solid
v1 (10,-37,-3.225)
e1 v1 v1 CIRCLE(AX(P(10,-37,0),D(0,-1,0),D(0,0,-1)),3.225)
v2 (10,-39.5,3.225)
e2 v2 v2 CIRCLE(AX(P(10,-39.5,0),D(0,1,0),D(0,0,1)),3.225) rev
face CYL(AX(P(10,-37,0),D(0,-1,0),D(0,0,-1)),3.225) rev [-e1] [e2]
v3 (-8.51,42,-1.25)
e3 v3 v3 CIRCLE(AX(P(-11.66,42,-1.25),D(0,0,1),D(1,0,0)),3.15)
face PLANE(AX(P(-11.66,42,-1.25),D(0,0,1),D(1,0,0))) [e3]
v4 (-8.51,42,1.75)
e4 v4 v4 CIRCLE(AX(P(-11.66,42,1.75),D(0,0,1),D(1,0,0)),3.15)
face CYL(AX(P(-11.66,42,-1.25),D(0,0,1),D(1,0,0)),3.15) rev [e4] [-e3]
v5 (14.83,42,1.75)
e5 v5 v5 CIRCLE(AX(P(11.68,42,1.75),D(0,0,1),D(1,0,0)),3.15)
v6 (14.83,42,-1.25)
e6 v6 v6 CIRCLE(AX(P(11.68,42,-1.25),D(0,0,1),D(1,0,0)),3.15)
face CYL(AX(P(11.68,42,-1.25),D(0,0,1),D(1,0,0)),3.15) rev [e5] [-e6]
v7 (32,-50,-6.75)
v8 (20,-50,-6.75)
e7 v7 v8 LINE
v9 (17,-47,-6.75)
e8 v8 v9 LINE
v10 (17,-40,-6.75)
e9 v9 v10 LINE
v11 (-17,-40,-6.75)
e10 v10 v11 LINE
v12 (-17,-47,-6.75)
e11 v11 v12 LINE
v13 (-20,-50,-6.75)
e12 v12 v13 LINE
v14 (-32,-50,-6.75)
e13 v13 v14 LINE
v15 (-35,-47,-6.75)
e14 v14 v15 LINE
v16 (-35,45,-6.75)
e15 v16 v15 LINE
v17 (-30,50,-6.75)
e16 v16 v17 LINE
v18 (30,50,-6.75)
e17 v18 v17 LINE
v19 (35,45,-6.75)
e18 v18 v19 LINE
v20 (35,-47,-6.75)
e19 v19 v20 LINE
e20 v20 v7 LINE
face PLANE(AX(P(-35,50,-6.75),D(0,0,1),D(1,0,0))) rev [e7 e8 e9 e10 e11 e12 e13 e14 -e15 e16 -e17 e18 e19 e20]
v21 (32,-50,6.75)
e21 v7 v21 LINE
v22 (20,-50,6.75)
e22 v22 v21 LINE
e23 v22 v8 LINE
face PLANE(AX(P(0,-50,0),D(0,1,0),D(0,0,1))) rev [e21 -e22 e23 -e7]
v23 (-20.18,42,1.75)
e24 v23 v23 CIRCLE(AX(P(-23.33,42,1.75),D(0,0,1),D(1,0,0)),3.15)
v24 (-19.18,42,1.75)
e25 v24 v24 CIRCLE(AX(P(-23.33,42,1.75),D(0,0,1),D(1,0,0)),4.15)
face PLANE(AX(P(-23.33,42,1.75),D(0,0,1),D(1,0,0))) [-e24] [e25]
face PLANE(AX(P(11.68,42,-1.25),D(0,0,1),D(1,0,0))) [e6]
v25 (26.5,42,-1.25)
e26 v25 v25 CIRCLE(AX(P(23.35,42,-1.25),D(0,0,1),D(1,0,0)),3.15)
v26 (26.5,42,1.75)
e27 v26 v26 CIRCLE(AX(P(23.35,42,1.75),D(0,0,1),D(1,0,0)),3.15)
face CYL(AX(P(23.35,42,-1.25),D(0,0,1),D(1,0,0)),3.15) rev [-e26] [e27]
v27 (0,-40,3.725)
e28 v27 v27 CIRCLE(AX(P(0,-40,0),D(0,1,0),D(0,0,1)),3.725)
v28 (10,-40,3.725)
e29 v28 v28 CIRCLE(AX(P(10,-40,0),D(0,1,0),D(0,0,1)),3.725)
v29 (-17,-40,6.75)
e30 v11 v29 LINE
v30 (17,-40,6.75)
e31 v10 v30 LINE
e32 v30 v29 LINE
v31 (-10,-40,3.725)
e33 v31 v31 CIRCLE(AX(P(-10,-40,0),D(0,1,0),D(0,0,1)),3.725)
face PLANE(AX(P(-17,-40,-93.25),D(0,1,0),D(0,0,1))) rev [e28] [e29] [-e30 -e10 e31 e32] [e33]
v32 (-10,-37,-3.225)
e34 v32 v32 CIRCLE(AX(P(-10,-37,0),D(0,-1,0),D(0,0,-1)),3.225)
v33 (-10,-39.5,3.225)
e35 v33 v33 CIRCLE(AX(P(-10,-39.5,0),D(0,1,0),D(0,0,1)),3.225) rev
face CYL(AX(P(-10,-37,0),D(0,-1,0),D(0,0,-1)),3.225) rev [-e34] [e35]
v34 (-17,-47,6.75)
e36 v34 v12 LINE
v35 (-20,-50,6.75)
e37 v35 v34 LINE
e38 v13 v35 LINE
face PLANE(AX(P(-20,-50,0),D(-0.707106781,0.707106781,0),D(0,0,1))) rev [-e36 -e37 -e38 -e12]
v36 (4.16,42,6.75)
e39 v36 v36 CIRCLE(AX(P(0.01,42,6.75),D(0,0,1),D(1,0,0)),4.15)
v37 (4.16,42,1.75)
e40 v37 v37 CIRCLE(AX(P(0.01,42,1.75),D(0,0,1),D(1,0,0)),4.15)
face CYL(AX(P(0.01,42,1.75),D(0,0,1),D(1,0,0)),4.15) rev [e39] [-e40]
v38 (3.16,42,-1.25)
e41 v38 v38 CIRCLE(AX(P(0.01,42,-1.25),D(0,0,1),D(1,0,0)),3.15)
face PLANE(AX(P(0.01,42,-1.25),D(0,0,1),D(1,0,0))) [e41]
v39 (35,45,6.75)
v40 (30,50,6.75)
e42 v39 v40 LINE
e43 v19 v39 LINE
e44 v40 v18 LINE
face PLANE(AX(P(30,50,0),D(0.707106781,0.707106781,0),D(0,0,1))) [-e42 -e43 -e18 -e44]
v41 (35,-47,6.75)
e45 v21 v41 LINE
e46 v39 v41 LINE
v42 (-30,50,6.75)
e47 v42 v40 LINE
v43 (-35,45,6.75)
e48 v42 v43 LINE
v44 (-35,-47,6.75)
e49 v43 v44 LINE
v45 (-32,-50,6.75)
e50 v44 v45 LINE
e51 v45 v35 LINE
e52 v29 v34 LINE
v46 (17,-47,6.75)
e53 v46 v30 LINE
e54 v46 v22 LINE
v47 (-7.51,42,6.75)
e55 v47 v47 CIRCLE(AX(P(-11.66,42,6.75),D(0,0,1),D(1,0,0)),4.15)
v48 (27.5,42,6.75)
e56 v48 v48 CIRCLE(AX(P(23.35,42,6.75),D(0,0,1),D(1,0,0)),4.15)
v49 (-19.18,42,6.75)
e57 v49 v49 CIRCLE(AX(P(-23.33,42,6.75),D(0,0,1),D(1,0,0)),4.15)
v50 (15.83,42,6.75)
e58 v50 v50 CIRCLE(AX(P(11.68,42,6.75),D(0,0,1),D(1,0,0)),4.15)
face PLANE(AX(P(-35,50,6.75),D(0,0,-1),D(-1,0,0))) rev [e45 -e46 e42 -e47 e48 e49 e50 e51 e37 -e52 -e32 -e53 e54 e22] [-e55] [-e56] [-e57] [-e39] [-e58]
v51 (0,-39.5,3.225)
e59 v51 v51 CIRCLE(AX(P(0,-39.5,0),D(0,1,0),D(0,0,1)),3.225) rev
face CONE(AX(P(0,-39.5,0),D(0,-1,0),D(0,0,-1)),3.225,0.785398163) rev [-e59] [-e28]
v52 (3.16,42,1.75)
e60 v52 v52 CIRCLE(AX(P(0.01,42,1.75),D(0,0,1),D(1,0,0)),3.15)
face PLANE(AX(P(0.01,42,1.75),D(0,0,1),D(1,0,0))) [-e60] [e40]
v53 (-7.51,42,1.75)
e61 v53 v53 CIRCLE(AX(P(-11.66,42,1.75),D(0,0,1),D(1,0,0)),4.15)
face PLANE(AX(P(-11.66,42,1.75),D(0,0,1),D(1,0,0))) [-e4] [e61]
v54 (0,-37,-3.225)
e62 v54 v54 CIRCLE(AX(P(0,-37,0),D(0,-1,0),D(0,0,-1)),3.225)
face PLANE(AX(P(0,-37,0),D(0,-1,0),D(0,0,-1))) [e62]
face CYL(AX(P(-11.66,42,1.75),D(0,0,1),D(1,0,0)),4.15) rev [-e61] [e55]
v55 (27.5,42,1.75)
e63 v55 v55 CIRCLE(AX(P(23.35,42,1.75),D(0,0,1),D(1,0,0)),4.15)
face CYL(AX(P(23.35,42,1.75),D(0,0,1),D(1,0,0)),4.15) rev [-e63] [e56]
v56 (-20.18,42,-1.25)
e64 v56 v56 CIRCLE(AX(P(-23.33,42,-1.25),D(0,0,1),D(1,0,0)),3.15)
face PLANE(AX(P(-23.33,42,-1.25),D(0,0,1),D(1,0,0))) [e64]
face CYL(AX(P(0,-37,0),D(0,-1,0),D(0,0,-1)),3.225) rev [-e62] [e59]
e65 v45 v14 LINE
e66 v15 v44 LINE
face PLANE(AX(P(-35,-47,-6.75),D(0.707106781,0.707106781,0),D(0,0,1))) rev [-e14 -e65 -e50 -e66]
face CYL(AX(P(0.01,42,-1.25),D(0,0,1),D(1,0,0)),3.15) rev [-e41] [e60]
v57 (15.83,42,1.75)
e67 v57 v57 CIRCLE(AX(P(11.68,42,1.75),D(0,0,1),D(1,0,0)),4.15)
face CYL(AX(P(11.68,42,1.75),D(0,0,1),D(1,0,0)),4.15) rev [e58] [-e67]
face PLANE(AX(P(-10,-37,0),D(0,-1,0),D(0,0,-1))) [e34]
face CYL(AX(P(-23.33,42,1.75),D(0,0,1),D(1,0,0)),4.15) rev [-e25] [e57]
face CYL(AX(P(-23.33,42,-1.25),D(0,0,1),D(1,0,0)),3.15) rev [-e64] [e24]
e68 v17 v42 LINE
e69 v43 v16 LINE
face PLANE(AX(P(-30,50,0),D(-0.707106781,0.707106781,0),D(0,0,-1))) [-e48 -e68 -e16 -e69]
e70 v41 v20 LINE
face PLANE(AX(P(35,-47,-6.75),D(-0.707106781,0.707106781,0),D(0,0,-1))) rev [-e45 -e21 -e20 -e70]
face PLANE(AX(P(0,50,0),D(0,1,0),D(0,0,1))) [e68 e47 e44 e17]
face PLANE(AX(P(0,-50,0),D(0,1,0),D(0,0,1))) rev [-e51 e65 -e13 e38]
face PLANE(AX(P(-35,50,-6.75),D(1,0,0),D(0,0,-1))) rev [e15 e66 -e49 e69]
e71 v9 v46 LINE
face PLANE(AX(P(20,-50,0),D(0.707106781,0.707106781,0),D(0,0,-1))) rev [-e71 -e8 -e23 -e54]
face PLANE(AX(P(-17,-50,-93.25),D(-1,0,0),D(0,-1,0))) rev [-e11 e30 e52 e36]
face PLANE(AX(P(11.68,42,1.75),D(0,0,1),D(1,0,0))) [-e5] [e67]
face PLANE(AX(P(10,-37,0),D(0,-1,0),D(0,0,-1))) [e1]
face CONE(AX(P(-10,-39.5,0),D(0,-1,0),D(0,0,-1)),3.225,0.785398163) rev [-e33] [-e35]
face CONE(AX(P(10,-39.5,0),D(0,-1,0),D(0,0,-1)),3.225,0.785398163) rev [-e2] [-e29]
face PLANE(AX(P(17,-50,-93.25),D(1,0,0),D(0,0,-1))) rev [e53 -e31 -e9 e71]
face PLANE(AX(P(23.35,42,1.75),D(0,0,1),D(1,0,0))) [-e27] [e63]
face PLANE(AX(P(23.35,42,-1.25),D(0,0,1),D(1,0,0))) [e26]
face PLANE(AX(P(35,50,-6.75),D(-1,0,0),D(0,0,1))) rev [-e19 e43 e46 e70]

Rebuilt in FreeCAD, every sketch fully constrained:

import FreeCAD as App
import Part
import Sketcher
from FreeCAD import Vector


def edges_at(feature, points):
    """Names of the edges that pass closest to the given points."""
    edges = feature.Shape.Edges
    near = lambda p: min(range(len(edges)), key=lambda i: edges[i].distToShape(Part.Vertex(*p))[0])
    return sorted({f"Edge{near(p) + 1}" for p in points})


def add_polygon(sketch, points):
    """Adds a closed chain of lines whose ends are joined by coincident constraints."""
    first, n = sketch.GeometryCount, len(points)
    for a, b in zip(points, points[1:] + points[:1]):
        sketch.addGeometry(Part.LineSegment(App.Vector(*a, 0), App.Vector(*b, 0)), False)
    for i in range(n):
        sketch.addConstraint(Sketcher.Constraint("Coincident", first + i, 2, first + (i + 1) % n, 1))

doc = App.newDocument("Part")
params = doc.addObject("Spreadsheet::Sheet", "Params")
for row, (alias, value) in enumerate([
    ("sketch1_width", "70 mm"),
    ("sketch1_height", "13.5 mm"),
    ("pad1_length", "100 mm"),
    ("sketch2_width", "34 mm"),
    ("sketch2_height", "10 mm"),
    ("pocket1_length", "100 mm"),
    ("sketch3_diameter", "6.45 mm"),
    ("pocket2_length", "3 mm"),
    ("chamfer_size", "0.5 mm"),
    ("sketch4_diameter", "8.3 mm"),
    ("pocket3_length", "5 mm"),
    ("sketch5_diameter", "6.3 mm"),
    ("pocket4_length", "3 mm"),
    ("chamfer2_size", "3 mm"),
    ("chamfer3_size", "5 mm"),
], start=1):
    params.set(f"A{row}", alias)
    params.set(f"B{row}", "=" + value)
    params.setAlias(f"B{row}", alias)

body = doc.addObject("PartDesign::Body", "Body")

# Sketch on XZ plane
sketch1 = body.newObject("Sketcher::SketchObject", "Sketch")
sketch1.AttachmentSupport = (doc.getObject("XZ_Plane"), [""])
sketch1.MapMode = "FlatFace"
add_polygon(sketch1, [(-35, -7), (-35, 7), (35, 7), (35, -7)])  # lines 0-3
sketch1.addConstraint([
    Sketcher.Constraint("Vertical", 0),
    Sketcher.Constraint("Horizontal", 1),
    Sketcher.Constraint("Vertical", 2),
    Sketcher.Constraint("Horizontal", 3),
    Sketcher.Constraint("Symmetric", 0, 2, 2, 2, -1, 1),
    Sketcher.Constraint("DistanceX", 1, 1, 1, 2, 70.0),
    Sketcher.Constraint("DistanceY", 0, 1, 0, 2, 13.5),
])
sketch1.setExpression("Constraints[9]", "Params.sketch1_width")
sketch1.setExpression("Constraints[10]", "Params.sketch1_height")
pad1 = body.newObject("PartDesign::Pad", "Pad")
pad1.Profile = sketch1
pad1.setExpression("Length", "Params.pad1_length")
pad1.Midplane = True

# Sketch on XY plane
sketch2 = body.newObject("Sketcher::SketchObject", "Sketch001")
sketch2.AttachmentSupport = (doc.getObject("XY_Plane"), [""])
sketch2.MapMode = "FlatFace"
sketch2.AttachmentOffset = App.Placement(Vector(0, 0, 6.75), App.Rotation())
add_polygon(sketch2, [(-17, -40), (-17, -50), (17, -50), (17, -40)])  # lines 0-3
sketch2.addConstraint([
    Sketcher.Constraint("Vertical", 0),
    Sketcher.Constraint("Horizontal", 1),
    Sketcher.Constraint("Vertical", 2),
    Sketcher.Constraint("Horizontal", 3),
    Sketcher.Constraint("DistanceX", 1, 1, 1, 2, 34.0),
    Sketcher.Constraint("DistanceY", 0, 2, 0, 1, 10.0),
    Sketcher.Constraint("DistanceX", 0, 2, -1, 1, 17.0),
    Sketcher.Constraint("DistanceY", 0, 2, -1, 1, 50.0),
])
sketch2.setExpression("Constraints[8]", "Params.sketch2_width")
sketch2.setExpression("Constraints[9]", "Params.sketch2_height")
pocket1 = body.newObject("PartDesign::Pocket", "Pocket")
pocket1.Profile = sketch2
pocket1.setExpression("Length", "Params.pocket1_length")

# Sketch on XZ plane
sketch3 = body.newObject("Sketcher::SketchObject", "Sketch002")
sketch3.AttachmentSupport = (doc.getObject("XZ_Plane"), [""])
sketch3.MapMode = "FlatFace"
sketch3.AttachmentOffset = App.Placement(Vector(0, 0, 40), App.Rotation())
sketch3.addGeometry([
    Part.Circle(Vector(-10, 0, 0), Vector(0, 0, 1), 3.2),
    Part.Circle(Vector(0, 0, 0), Vector(0, 0, 1), 3.2),
    Part.Circle(Vector(10, 0, 0), Vector(0, 0, 1), 3.2),
], False)
sketch3.addConstraint([
    Sketcher.Constraint("Coincident", 1, 3, -1, 1),
    Sketcher.Constraint("Equal", 0, 1),
    Sketcher.Constraint("Equal", 1, 2),
    Sketcher.Constraint("Symmetric", 0, 3, 2, 3, -1, 1),
    Sketcher.Constraint("PointOnObject", 0, 3, -1),
    Sketcher.Constraint("Diameter", 0, 6.45),
    Sketcher.Constraint("DistanceX", 0, 3, -1, 1, 10.0),
])
sketch3.setExpression("Constraints[5]", "Params.sketch3_diameter")
pocket2 = body.newObject("PartDesign::Pocket", "Pocket001")
pocket2.Profile = sketch3
pocket2.setExpression("Length", "Params.pocket2_length")
doc.recompute()

chamfer = body.newObject("PartDesign::Chamfer", "Chamfer")
chamfer.Base = (pocket2, edges_at(pocket2, [(-10, -40, 3.225), (0, -40, 3.225), (10, -40, 3.225)]))
chamfer.setExpression("Size", "Params.chamfer_size")

# Sketch on XY plane
sketch4 = body.newObject("Sketcher::SketchObject", "Sketch003")
sketch4.AttachmentSupport = (doc.getObject("XY_Plane"), [""])
sketch4.MapMode = "FlatFace"
sketch4.AttachmentOffset = App.Placement(Vector(0, 0, 6.75), App.Rotation())
sketch4.addGeometry([
    Part.Circle(Vector(-23.3, 42, 0), Vector(0, 0, 1), 4.2),  # 0
    Part.Circle(Vector(-11.7, 42, 0), Vector(0, 0, 1), 4.2),  # 1
    Part.Circle(Vector(0, 42, 0), Vector(0, 0, 1), 4.2),  # 2
    Part.Circle(Vector(11.7, 42, 0), Vector(0, 0, 1), 4.2),  # 3
    Part.Circle(Vector(23.4, 42, 0), Vector(0, 0, 1), 4.2),  # 4
], False)
sketch4.addConstraint([
    Sketcher.Constraint("Equal", 0, 1),
    Sketcher.Constraint("Equal", 1, 2),
    Sketcher.Constraint("Equal", 2, 3),
    Sketcher.Constraint("Equal", 3, 4),
    Sketcher.Constraint("Horizontal", 0, 3, 1, 3),
    Sketcher.Constraint("Horizontal", 1, 3, 2, 3),
    Sketcher.Constraint("Horizontal", 2, 3, 3, 3),
    Sketcher.Constraint("Horizontal", 3, 3, 4, 3),
    Sketcher.Constraint("Diameter", 0, 8.3),
    Sketcher.Constraint("DistanceY", -1, 1, 0, 3, 42.0),
    Sketcher.Constraint("DistanceX", 0, 3, -1, 1, 23.33),
    Sketcher.Constraint("DistanceX", 1, 3, -1, 1, 11.66),
    Sketcher.Constraint("DistanceX", -1, 1, 2, 3, 0.01),
    Sketcher.Constraint("DistanceX", -1, 1, 3, 3, 11.68),
    Sketcher.Constraint("DistanceX", -1, 1, 4, 3, 23.35),
])
sketch4.setExpression("Constraints[8]", "Params.sketch4_diameter")
pocket3 = body.newObject("PartDesign::Pocket", "Pocket002")
pocket3.Profile = sketch4
pocket3.setExpression("Length", "Params.pocket3_length")

# Sketch on XY plane
sketch5 = body.newObject("Sketcher::SketchObject", "Sketch004")
sketch5.AttachmentSupport = (doc.getObject("XY_Plane"), [""])
sketch5.MapMode = "FlatFace"
sketch5.AttachmentOffset = App.Placement(Vector(0, 0, 1.75), App.Rotation())
sketch5.addGeometry([
    Part.Circle(Vector(-23.3, 42, 0), Vector(0, 0, 1), 3.1),  # 0
    Part.Circle(Vector(-11.7, 42, 0), Vector(0, 0, 1), 3.1),  # 1
    Part.Circle(Vector(0, 42, 0), Vector(0, 0, 1), 3.1),  # 2
    Part.Circle(Vector(11.7, 42, 0), Vector(0, 0, 1), 3.1),  # 3
    Part.Circle(Vector(23.4, 42, 0), Vector(0, 0, 1), 3.1),  # 4
], False)
sketch5.addConstraint([
    Sketcher.Constraint("Equal", 0, 1),
    Sketcher.Constraint("Equal", 1, 2),
    Sketcher.Constraint("Equal", 2, 3),
    Sketcher.Constraint("Equal", 3, 4),
    Sketcher.Constraint("Horizontal", 0, 3, 1, 3),
    Sketcher.Constraint("Horizontal", 1, 3, 2, 3),
    Sketcher.Constraint("Horizontal", 2, 3, 3, 3),
    Sketcher.Constraint("Horizontal", 3, 3, 4, 3),
    Sketcher.Constraint("Diameter", 0, 6.3),
    Sketcher.Constraint("DistanceY", -1, 1, 0, 3, 42.0),
    Sketcher.Constraint("DistanceX", 0, 3, -1, 1, 23.33),
    Sketcher.Constraint("DistanceX", 1, 3, -1, 1, 11.66),
    Sketcher.Constraint("DistanceX", -1, 1, 2, 3, 0.01),
    Sketcher.Constraint("DistanceX", -1, 1, 3, 3, 11.68),
    Sketcher.Constraint("DistanceX", -1, 1, 4, 3, 23.35),
])
sketch5.setExpression("Constraints[8]", "Params.sketch5_diameter")
pocket4 = body.newObject("PartDesign::Pocket", "Pocket003")
pocket4.Profile = sketch5
pocket4.setExpression("Length", "Params.pocket4_length")
doc.recompute()

chamfer2 = body.newObject("PartDesign::Chamfer", "Chamfer001")
chamfer2.Base = (pocket4, edges_at(pocket4, [
    (17, -50, 0),
    (-17, -50, 0),
    (-35, -50, 0),
    (35, -50, 0),
]))
chamfer2.setExpression("Size", "Params.chamfer2_size")
doc.recompute()

chamfer3 = body.newObject("PartDesign::Chamfer", "Chamfer002")
chamfer3.Base = (chamfer2, edges_at(chamfer2, [(-35, 50, 0), (35, 50, 0)]))
chamfer3.setExpression("Size", "Params.chamfer3_size")

doc.recompute()
